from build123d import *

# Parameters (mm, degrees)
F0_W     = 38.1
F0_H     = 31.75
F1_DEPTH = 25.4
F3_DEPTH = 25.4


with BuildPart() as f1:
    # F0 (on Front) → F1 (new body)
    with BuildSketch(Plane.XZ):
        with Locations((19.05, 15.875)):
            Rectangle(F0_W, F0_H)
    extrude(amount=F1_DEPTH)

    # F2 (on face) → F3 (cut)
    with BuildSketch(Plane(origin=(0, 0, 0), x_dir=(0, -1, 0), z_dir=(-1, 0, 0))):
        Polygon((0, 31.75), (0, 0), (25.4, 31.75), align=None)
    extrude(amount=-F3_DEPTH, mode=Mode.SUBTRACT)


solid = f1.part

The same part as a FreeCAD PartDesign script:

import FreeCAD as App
import Part
import Sketcher
from FreeCAD import Vector
Q = App.Units.Quantity


def add_polygon(sketch, points):
    """Adds a closed chain of lines whose ends are joined by coincident constraints."""
    first, n = sketch.GeometryCount, len(points)
    for a, b in zip(points, points[1:] + points[:1]):
        sketch.addGeometry(Part.LineSegment(App.Vector(*a, 0), App.Vector(*b, 0)), False)
    for i in range(n):
        sketch.addConstraint(Sketcher.Constraint("Coincident", first + i, 2, first + (i + 1) % n, 1))

doc = App.newDocument("Part")
body = doc.addObject("PartDesign::Body", "Body")

# Sketch on XZ plane
sketch1 = body.newObject("Sketcher::SketchObject", "Sketch")
sketch1.AttachmentSupport = (doc.getObject("XZ_Plane"), [""])
sketch1.MapMode = "FlatFace"
add_polygon(sketch1, [(0, 31.75), (0, 0), (38.1, 0), (38.1, 31.75)])  # lines 0-3
sketch1.addConstraint([
    Sketcher.Constraint("Vertical", 0),
    Sketcher.Constraint("Horizontal", 1),
    Sketcher.Constraint("Vertical", 2),
    Sketcher.Constraint("Horizontal", 3),
    Sketcher.Constraint("Coincident", 0, 2, -1, 1),
    Sketcher.Constraint("DistanceX", 1, 1, 1, 2, Q("1.5 in")),
    Sketcher.Constraint("DistanceY", 0, 2, 0, 1, Q("1.25 in")),
])
pad1 = body.newObject("PartDesign::Pad", "Pad")
pad1.Profile = sketch1
pad1.Length = Q("1 in")

# Sketch on YZ plane
sketch2 = body.newObject("Sketcher::SketchObject", "Sketch001")
sketch2.AttachmentSupport = (doc.getObject("YZ_Plane"), [""])
sketch2.MapMode = "FlatFace"
add_polygon(sketch2, [(0, 31.75), (0, 0), (-25.4, 31.75)])  # lines 0-2
sketch2.addConstraint([
    Sketcher.Constraint("Vertical", 0),
    Sketcher.Constraint("Horizontal", 2),
    Sketcher.Constraint("Coincident", 0, 2, -1, 1),
    Sketcher.Constraint("DistanceX", 2, 1, 2, 2, Q("1 in")),
    Sketcher.Constraint("DistanceY", 0, 2, 0, 1, Q("1.25 in")),
])
pocket1 = body.newObject("PartDesign::Pocket", "Pocket")
pocket1.Profile = sketch2
pocket1.Length = Q("1 in")
pocket1.Reversed = True

doc.recompute()
